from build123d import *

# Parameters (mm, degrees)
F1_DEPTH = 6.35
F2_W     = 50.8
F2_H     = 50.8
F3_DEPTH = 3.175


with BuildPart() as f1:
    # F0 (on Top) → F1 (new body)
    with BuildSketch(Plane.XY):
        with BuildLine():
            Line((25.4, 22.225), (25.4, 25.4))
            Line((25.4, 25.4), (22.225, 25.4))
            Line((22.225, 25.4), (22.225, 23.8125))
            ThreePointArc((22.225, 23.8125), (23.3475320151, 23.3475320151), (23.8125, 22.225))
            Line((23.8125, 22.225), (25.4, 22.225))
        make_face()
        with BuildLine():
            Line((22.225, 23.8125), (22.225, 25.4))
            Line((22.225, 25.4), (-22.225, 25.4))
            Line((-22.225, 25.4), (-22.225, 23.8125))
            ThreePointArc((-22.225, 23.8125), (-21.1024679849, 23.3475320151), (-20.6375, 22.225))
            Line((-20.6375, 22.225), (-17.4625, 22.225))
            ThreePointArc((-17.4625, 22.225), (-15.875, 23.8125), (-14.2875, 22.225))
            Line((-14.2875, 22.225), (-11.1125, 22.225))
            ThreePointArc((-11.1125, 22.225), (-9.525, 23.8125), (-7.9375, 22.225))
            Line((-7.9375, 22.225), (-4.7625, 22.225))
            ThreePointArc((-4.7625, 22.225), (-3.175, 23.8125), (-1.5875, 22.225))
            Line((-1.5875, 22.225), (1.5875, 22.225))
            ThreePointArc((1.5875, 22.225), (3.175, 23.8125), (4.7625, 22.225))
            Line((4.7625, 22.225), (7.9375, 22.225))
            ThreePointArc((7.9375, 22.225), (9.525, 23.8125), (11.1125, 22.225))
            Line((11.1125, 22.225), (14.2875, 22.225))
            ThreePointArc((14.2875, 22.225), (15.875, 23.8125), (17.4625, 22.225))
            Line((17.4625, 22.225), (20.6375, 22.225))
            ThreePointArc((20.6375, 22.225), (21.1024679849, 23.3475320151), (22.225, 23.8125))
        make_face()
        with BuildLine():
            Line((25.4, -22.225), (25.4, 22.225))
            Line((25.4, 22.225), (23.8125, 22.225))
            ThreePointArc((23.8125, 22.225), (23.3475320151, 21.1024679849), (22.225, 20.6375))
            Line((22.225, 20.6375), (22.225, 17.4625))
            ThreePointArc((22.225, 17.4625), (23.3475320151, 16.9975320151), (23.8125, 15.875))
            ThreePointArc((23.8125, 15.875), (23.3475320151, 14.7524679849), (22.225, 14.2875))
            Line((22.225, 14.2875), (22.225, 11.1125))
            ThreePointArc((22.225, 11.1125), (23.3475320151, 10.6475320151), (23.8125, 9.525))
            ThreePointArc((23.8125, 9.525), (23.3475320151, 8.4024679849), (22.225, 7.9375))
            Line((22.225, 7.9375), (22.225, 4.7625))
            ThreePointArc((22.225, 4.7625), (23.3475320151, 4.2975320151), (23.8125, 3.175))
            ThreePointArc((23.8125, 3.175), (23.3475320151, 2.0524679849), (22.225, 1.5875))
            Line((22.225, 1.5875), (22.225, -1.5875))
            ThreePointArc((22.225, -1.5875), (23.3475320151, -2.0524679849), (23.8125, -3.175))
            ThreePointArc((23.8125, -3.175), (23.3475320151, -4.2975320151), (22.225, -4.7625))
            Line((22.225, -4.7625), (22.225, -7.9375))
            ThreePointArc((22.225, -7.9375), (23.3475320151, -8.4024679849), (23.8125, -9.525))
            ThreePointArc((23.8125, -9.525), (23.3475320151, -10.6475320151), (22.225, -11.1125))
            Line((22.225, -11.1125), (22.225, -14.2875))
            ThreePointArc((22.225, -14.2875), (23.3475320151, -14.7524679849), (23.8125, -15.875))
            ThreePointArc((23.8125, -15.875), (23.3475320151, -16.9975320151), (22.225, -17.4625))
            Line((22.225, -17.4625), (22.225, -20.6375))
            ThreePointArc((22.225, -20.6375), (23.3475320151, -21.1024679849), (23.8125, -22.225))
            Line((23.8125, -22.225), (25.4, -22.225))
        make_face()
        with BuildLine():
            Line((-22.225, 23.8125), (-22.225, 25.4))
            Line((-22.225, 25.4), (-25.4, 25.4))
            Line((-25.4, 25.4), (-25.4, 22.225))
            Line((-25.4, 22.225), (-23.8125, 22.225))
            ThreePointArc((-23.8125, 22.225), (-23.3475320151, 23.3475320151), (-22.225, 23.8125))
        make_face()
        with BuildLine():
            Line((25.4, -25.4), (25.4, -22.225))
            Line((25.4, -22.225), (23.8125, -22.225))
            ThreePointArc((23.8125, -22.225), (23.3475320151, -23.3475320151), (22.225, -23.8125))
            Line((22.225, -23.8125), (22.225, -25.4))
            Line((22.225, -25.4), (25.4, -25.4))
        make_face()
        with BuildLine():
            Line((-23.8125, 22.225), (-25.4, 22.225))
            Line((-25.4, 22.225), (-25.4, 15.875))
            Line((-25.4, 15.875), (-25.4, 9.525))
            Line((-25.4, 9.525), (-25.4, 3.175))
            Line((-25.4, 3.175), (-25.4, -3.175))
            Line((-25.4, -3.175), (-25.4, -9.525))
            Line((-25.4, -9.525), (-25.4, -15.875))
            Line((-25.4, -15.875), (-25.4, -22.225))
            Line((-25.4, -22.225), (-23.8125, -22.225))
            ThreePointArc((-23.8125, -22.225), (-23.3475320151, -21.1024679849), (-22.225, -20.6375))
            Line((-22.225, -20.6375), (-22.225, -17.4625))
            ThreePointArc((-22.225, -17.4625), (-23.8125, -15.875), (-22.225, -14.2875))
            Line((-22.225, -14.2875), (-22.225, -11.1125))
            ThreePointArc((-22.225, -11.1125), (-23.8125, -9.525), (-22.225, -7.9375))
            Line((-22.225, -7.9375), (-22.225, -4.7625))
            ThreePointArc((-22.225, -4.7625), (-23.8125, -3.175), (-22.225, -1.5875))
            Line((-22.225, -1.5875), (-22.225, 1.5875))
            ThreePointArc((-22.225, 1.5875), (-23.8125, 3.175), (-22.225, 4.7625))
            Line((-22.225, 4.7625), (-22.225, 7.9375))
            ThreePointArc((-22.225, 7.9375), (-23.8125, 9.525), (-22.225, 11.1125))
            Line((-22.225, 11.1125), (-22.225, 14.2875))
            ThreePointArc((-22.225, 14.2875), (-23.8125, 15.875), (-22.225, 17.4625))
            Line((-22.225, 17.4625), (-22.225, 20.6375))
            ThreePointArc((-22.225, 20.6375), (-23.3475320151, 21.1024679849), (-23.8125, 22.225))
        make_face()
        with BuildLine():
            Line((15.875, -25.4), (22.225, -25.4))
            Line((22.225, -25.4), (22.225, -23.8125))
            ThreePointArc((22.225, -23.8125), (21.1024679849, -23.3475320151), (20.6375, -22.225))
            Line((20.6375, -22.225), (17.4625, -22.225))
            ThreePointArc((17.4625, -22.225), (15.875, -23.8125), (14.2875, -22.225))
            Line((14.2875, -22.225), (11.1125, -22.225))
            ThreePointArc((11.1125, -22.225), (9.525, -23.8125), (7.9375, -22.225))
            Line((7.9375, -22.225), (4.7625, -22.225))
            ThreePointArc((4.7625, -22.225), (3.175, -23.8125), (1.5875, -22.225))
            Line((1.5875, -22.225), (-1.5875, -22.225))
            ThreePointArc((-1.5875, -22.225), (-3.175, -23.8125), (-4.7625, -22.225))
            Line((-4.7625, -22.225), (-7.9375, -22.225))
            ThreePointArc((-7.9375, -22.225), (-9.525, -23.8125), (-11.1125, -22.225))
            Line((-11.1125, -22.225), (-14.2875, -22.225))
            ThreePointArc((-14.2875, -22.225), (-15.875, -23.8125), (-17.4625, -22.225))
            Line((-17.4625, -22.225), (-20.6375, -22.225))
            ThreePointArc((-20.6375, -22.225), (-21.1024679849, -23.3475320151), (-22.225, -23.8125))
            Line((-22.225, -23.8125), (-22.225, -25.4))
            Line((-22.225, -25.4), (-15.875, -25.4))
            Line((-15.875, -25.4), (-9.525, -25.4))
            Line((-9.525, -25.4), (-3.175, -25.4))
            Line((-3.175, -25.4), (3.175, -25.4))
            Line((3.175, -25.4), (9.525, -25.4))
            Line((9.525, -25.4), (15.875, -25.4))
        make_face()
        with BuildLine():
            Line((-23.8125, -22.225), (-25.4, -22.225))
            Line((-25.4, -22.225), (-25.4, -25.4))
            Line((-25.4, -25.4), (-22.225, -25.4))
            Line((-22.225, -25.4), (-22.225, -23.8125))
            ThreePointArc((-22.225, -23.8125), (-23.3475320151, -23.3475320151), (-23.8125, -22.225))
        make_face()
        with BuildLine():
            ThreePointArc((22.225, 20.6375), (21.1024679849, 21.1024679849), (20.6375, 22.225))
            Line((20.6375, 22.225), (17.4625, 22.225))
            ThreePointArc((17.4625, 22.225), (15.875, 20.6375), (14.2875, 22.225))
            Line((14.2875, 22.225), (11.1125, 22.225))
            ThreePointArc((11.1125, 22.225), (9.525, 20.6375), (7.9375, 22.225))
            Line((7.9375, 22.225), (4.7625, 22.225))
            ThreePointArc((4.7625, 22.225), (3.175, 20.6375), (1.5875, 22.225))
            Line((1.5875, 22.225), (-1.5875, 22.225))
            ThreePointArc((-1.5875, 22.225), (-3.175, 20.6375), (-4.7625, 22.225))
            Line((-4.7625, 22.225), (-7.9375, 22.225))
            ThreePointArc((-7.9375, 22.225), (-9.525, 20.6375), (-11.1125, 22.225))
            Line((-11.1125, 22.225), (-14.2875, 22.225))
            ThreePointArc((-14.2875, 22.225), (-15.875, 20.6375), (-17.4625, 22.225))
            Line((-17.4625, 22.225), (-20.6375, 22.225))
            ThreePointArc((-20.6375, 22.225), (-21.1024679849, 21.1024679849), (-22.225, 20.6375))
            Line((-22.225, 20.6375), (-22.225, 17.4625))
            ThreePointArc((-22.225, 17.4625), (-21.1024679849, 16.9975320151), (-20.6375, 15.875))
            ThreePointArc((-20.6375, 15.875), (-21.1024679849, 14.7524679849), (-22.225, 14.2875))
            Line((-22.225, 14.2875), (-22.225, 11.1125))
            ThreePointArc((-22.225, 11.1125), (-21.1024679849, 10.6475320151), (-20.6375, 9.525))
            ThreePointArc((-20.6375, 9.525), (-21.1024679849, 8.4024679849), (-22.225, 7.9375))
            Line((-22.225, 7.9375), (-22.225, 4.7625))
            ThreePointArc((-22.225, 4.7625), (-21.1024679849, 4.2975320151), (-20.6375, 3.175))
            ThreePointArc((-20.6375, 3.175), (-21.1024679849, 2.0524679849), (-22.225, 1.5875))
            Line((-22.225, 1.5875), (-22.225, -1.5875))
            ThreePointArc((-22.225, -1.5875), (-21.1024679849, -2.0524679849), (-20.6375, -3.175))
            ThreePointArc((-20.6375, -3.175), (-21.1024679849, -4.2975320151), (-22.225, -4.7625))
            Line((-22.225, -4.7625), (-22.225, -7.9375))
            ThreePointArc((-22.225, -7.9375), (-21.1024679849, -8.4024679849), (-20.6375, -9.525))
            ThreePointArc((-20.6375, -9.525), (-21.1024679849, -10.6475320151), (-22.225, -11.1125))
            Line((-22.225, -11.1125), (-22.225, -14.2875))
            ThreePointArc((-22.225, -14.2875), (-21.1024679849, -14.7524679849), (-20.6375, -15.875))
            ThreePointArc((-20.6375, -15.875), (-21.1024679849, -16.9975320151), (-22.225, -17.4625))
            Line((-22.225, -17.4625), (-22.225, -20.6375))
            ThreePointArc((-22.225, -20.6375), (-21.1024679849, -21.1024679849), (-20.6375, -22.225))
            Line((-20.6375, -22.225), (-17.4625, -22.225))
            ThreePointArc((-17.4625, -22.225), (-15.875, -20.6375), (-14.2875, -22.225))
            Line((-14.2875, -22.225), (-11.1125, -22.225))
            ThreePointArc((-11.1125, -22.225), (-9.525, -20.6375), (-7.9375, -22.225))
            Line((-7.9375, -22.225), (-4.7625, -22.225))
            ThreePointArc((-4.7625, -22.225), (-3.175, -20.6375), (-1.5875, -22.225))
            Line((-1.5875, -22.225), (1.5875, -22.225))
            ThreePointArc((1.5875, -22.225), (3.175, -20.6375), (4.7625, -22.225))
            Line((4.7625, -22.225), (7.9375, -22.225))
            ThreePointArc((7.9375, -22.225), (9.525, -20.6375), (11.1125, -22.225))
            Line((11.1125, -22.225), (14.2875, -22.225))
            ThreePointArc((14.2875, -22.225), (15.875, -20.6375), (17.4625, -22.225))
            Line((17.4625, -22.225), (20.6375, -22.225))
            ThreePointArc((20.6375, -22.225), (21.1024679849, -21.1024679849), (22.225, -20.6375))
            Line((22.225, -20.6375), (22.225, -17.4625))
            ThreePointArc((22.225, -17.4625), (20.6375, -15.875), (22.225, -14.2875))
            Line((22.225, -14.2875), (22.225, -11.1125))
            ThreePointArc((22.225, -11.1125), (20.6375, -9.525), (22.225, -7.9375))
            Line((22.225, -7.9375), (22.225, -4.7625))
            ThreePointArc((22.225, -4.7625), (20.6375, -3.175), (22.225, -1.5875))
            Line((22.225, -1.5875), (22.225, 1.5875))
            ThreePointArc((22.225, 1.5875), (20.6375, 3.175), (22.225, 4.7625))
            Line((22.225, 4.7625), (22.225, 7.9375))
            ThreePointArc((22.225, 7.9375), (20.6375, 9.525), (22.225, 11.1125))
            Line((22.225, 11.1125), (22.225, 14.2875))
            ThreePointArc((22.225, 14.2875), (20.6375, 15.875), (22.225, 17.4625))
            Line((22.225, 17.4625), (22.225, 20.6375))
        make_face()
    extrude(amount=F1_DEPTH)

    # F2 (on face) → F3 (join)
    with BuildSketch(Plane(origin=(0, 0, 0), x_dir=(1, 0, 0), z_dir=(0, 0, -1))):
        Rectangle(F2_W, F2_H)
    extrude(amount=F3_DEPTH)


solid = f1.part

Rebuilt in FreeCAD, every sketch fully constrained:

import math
import FreeCAD as App
import Part
import Sketcher
Q = App.Units.Quantity

doc = App.newDocument("Part")
body = doc.addObject("PartDesign::Body", "Body")

# Sketch on XY plane
sketch1 = body.newObject("Sketcher::SketchObject", "Sketch")
sketch1.AttachmentSupport = (doc.getObject("XY_Plane"), [""])
sketch1.MapMode = "FlatFace"
sketch1.addGeometry([
    Part.LineSegment(App.Vector(25.4, 25.4, 0), App.Vector(-25.4, 25.4, 0)),  # 0
    Part.LineSegment(App.Vector(-25.4, 25.4, 0), App.Vector(-25.4, -25.4, 0)),  # 1
    Part.LineSegment(App.Vector(-25.4, -25.4, 0), App.Vector(25.4, -25.4, 0)),  # 2
    Part.LineSegment(App.Vector(25.4, -25.4, 0), App.Vector(25.4, 25.4, 0)),  # 3
    Part.ArcOfCircle(Part.Circle(App.Vector(-22.2, -22.2, 0), App.Vector(0, 0, 1), 1.6), math.radians(90), math.radians(180)),  # 4
    Part.ArcOfCircle(Part.Circle(App.Vector(-22.2, -22.2, 0), App.Vector(0, 0, 1), 1.6), math.radians(0), math.radians(90)),  # 5
    Part.ArcOfCircle(Part.Circle(App.Vector(-22.2, -22.2, 0), App.Vector(0, 0, 1), 1.6), math.radians(-90), math.radians(0)),  # 6
    Part.ArcOfCircle(Part.Circle(App.Vector(-22.2, -22.2, 0), App.Vector(0, 0, 1), 1.6), math.radians(180), math.radians(270)),  # 7
    Part.ArcOfCircle(Part.Circle(App.Vector(-22.2, -15.9, 0), App.Vector(0, 0, 1), 1.6), math.radians(90), math.radians(270)),  # 8
    Part.ArcOfCircle(Part.Circle(App.Vector(-22.2, -15.9, 0), App.Vector(0, 0, 1), 1.6), math.radians(0), math.radians(90)),  # 9
    Part.ArcOfCircle(Part.Circle(App.Vector(-22.2, -15.9, 0), App.Vector(0, 0, 1), 1.6), math.radians(-90), math.radians(0)),  # 10
    Part.ArcOfCircle(Part.Circle(App.Vector(-22.2, -9.5, 0), App.Vector(0, 0, 1), 1.6), math.radians(90), math.radians(270)),  # 11
    Part.ArcOfCircle(Part.Circle(App.Vector(-22.2, -9.5, 0), App.Vector(0, 0, 1), 1.6), math.radians(0), math.radians(90)),  # 12
    Part.ArcOfCircle(Part.Circle(App.Vector(-22.2, -9.5, 0), App.Vector(0, 0, 1), 1.6), math.radians(-90), math.radians(0)),  # 13
    Part.ArcOfCircle(Part.Circle(App.Vector(-22.2, -3.2, 0), App.Vector(0, 0, 1), 1.6), math.radians(90), math.radians(270)),  # 14
    Part.ArcOfCircle(Part.Circle(App.Vector(-22.2, -3.2, 0), App.Vector(0, 0, 1), 1.6), math.radians(0), math.radians(90)),  # 15
    Part.ArcOfCircle(Part.Circle(App.Vector(-22.2, -3.2, 0), App.Vector(0, 0, 1), 1.6), math.radians(-90), math.radians(0)),  # 16
    Part.ArcOfCircle(Part.Circle(App.Vector(-22.2, 3.2, 0), App.Vector(0, 0, 1), 1.6), math.radians(90), math.radians(270)),  # 17
    Part.ArcOfCircle(Part.Circle(App.Vector(-22.2, 3.2, 0), App.Vector(0, 0, 1), 1.6), math.radians(0), math.radians(90)),  # 18
    Part.ArcOfCircle(Part.Circle(App.Vector(-22.2, 3.2, 0), App.Vector(0, 0, 1), 1.6), math.radians(-90), math.radians(0)),  # 19
    Part.ArcOfCircle(Part.Circle(App.Vector(-22.2, 9.5, 0), App.Vector(0, 0, 1), 1.6), math.radians(90), math.radians(270)),  # 20
    Part.ArcOfCircle(Part.Circle(App.Vector(-22.2, 9.5, 0), App.Vector(0, 0, 1), 1.6), math.radians(0), math.radians(90)),  # 21
    Part.ArcOfCircle(Part.Circle(App.Vector(-22.2, 9.5, 0), App.Vector(0, 0, 1), 1.6), math.radians(-90), math.radians(0)),  # 22
    Part.ArcOfCircle(Part.Circle(App.Vector(-22.2, 15.9, 0), App.Vector(0, 0, 1), 1.6), math.radians(90), math.radians(270)),  # 23
    Part.ArcOfCircle(Part.Circle(App.Vector(-22.2, 15.9, 0), App.Vector(0, 0, 1), 1.6), math.radians(0), math.radians(90)),  # 24
    Part.ArcOfCircle(Part.Circle(App.Vector(-22.2, 15.9, 0), App.Vector(0, 0, 1), 1.6), math.radians(-90), math.radians(0)),  # 25
    Part.ArcOfCircle(Part.Circle(App.Vector(-22.2, 22.2, 0), App.Vector(0, 0, 1), 1.6), math.radians(180), math.radians(270)),  # 26
    Part.ArcOfCircle(Part.Circle(App.Vector(-22.2, 22.2, 0), App.Vector(0, 0, 1), 1.6), math.radians(90), math.radians(180)),  # 27
    Part.ArcOfCircle(Part.Circle(App.Vector(-22.2, 22.2, 0), App.Vector(0, 0, 1), 1.6), math.radians(0), math.radians(90)),  # 28
    Part.ArcOfCircle(Part.Circle(App.Vector(-22.2, 22.2, 0), App.Vector(0, 0, 1), 1.6), math.radians(-90), math.radians(0)),  # 29
    Part.Circle(App.Vector(-15.9, 22.2, 0), App.Vector(0, 0, 1), 1.6),  # 30
    Part.Circle(App.Vector(-9.5, 22.2, 0), App.Vector(0, 0, 1), 1.6),  # 31
    Part.Circle(App.Vector(-3.2, 22.2, 0), App.Vector(0, 0, 1), 1.6),  # 32
    Part.Circle(App.Vector(3.2, 22.2, 0), App.Vector(0, 0, 1), 1.6),  # 33
    Part.Circle(App.Vector(9.5, 22.2, 0), App.Vector(0, 0, 1), 1.6),  # 34
    Part.Circle(App.Vector(15.9, 22.2, 0), App.Vector(0, 0, 1), 1.6),  # 35
    Part.ArcOfCircle(Part.Circle(App.Vector(22.2, 22.2, 0), App.Vector(0, 0, 1), 1.6), math.radians(90), math.radians(180)),  # 36
    Part.ArcOfCircle(Part.Circle(App.Vector(22.2, 22.2, 0), App.Vector(0, 0, 1), 1.6), math.radians(0), math.radians(90)),  # 37
    Part.ArcOfCircle(Part.Circle(App.Vector(22.2, 22.2, 0), App.Vector(0, 0, 1), 1.6), math.radians(-90), math.radians(0)),  # 38
    Part.ArcOfCircle(Part.Circle(App.Vector(22.2, 22.2, 0), App.Vector(0, 0, 1), 1.6), math.radians(180), math.radians(270)),  # 39
    Part.ArcOfCircle(Part.Circle(App.Vector(22.2, 15.9, 0), App.Vector(0, 0, 1), 1.6), math.radians(0), math.radians(90)),  # 40
    Part.ArcOfCircle(Part.Circle(App.Vector(22.2, 15.9, 0), App.Vector(0, 0, 1), 1.6), math.radians(-90), math.radians(0)),  # 41
    Part.ArcOfCircle(Part.Circle(App.Vector(22.2, 15.9, 0), App.Vector(0, 0, 1), 1.6), math.radians(90), math.radians(270)),  # 42
    Part.ArcOfCircle(Part.Circle(App.Vector(22.2, 9.5, 0), App.Vector(0, 0, 1), 1.6), math.radians(0), math.radians(90)),  # 43
    Part.ArcOfCircle(Part.Circle(App.Vector(22.2, 9.5, 0), App.Vector(0, 0, 1), 1.6), math.radians(-90), math.radians(0)),  # 44
    Part.ArcOfCircle(Part.Circle(App.Vector(22.2, 9.5, 0), App.Vector(0, 0, 1), 1.6), math.radians(90), math.radians(270)),  # 45
    Part.ArcOfCircle(Part.Circle(App.Vector(22.2, 3.2, 0), App.Vector(0, 0, 1), 1.6), math.radians(0), math.radians(90)),  # 46
    Part.ArcOfCircle(Part.Circle(App.Vector(22.2, 3.2, 0), App.Vector(0, 0, 1), 1.6), math.radians(-90), math.radians(0)),  # 47
    Part.ArcOfCircle(Part.Circle(App.Vector(22.2, 3.2, 0), App.Vector(0, 0, 1), 1.6), math.radians(90), math.radians(270)),  # 48
    Part.ArcOfCircle(Part.Circle(App.Vector(22.2, -3.2, 0), App.Vector(0, 0, 1), 1.6), math.radians(0), math.radians(90)),  # 49
    Part.ArcOfCircle(Part.Circle(App.Vector(22.2, -3.2, 0), App.Vector(0, 0, 1), 1.6), math.radians(-90), math.radians(0)),  # 50
    Part.ArcOfCircle(Part.Circle(App.Vector(22.2, -3.2, 0), App.Vector(0, 0, 1), 1.6), math.radians(90), math.radians(270)),  # 51
    Part.ArcOfCircle(Part.Circle(App.Vector(22.2, -9.5, 0), App.Vector(0, 0, 1), 1.6), math.radians(0), math.radians(90)),  # 52
    Part.ArcOfCircle(Part.Circle(App.Vector(22.2, -9.5, 0), App.Vector(0, 0, 1), 1.6), math.radians(-90), math.radians(0)),  # 53
    Part.ArcOfCircle(Part.Circle(App.Vector(22.2, -9.5, 0), App.Vector(0, 0, 1), 1.6), math.radians(90), math.radians(270)),  # 54
    Part.ArcOfCircle(Part.Circle(App.Vector(22.2, -15.9, 0), App.Vector(0, 0, 1), 1.6), math.radians(0), math.radians(90)),  # 55
    Part.ArcOfCircle(Part.Circle(App.Vector(22.2, -15.9, 0), App.Vector(0, 0, 1), 1.6), math.radians(-90), math.radians(0)),  # 56
    Part.ArcOfCircle(Part.Circle(App.Vector(22.2, -15.9, 0), App.Vector(0, 0, 1), 1.6), math.radians(90), math.radians(270)),  # 57
    Part.ArcOfCircle(Part.Circle(App.Vector(22.2, -22.2, 0), App.Vector(0, 0, 1), 1.6), math.radians(0), math.radians(90)),  # 58
    Part.ArcOfCircle(Part.Circle(App.Vector(22.2, -22.2, 0), App.Vector(0, 0, 1), 1.6), math.radians(-90), math.radians(0)),  # 59
    Part.ArcOfCircle(Part.Circle(App.Vector(22.2, -22.2, 0), App.Vector(0, 0, 1), 1.6), math.radians(180), math.radians(270)),  # 60
    Part.ArcOfCircle(Part.Circle(App.Vector(22.2, -22.2, 0), App.Vector(0, 0, 1), 1.6), math.radians(90), math.radians(180)),  # 61
    Part.Circle(App.Vector(15.9, -22.2, 0), App.Vector(0, 0, 1), 1.6),  # 62
    Part.Circle(App.Vector(9.5, -22.2, 0), App.Vector(0, 0, 1), 1.6),  # 63
    Part.Circle(App.Vector(3.2, -22.2, 0), App.Vector(0, 0, 1), 1.6),  # 64
    Part.Circle(App.Vector(-3.2, -22.2, 0), App.Vector(0, 0, 1), 1.6),  # 65
    Part.Circle(App.Vector(-9.5, -22.2, 0), App.Vector(0, 0, 1), 1.6),  # 66
    Part.Circle(App.Vector(-15.9, -22.2, 0), App.Vector(0, 0, 1), 1.6),  # 67
], False)
sketch1.addConstraint([
    Sketcher.Constraint("Coincident", 0, 2, 1, 1),
    Sketcher.Constraint("Coincident", 1, 2, 2, 1),
    Sketcher.Constraint("Coincident", 2, 2, 3, 1),
    Sketcher.Constraint("Coincident", 3, 2, 0, 1),
    Sketcher.Constraint("Tangent", 4, 1, 5, 2),
    Sketcher.Constraint("Tangent", 5, 1, 6, 2),
    Sketcher.Constraint("Tangent", 6, 1, 7, 2),
    Sketcher.Constraint("Tangent", 7, 1, 4, 2),
    Sketcher.Constraint("Tangent", 8, 1, 9, 2),
    Sketcher.Constraint("Tangent", 9, 1, 10, 2),
    Sketcher.Constraint("Tangent", 10, 1, 8, 2),
    Sketcher.Constraint("Tangent", 11, 1, 12, 2),
    Sketcher.Constraint("Tangent", 12, 1, 13, 2),
    Sketcher.Constraint("Tangent", 13, 1, 11, 2),
    Sketcher.Constraint("Tangent", 14, 1, 15, 2),
    Sketcher.Constraint("Tangent", 15, 1, 16, 2),
    Sketcher.Constraint("Tangent", 16, 1, 14, 2),
    Sketcher.Constraint("Tangent", 17, 1, 18, 2),
    Sketcher.Constraint("Tangent", 18, 1, 19, 2),
    Sketcher.Constraint("Tangent", 19, 1, 17, 2),
    Sketcher.Constraint("Tangent", 20, 1, 21, 2),
    Sketcher.Constraint("Tangent", 21, 1, 22, 2),
    Sketcher.Constraint("Tangent", 22, 1, 20, 2),
    Sketcher.Constraint("Tangent", 23, 1, 24, 2),
    Sketcher.Constraint("Tangent", 24, 1, 25, 2),
    Sketcher.Constraint("Tangent", 25, 1, 23, 2),
    Sketcher.Constraint("Tangent", 26, 1, 27, 2),
    Sketcher.Constraint("Tangent", 27, 1, 28, 2),
    Sketcher.Constraint("Tangent", 28, 1, 29, 2),
    Sketcher.Constraint("Tangent", 29, 1, 26, 2),
    Sketcher.Constraint("Tangent", 36, 1, 37, 2),
    Sketcher.Constraint("Tangent", 37, 1, 38, 2),
    Sketcher.Constraint("Tangent", 38, 1, 39, 2),
    Sketcher.Constraint("Tangent", 39, 1, 36, 2),
    Sketcher.Constraint("Tangent", 40, 1, 41, 2),
    Sketcher.Constraint("Tangent", 41, 1, 42, 2),
    Sketcher.Constraint("Tangent", 42, 1, 40, 2),
    Sketcher.Constraint("Tangent", 43, 1, 44, 2),
    Sketcher.Constraint("Tangent", 44, 1, 45, 2),
    Sketcher.Constraint("Tangent", 45, 1, 43, 2),
    Sketcher.Constraint("Tangent", 46, 1, 47, 2),
    Sketcher.Constraint("Tangent", 47, 1, 48, 2),
    Sketcher.Constraint("Tangent", 48, 1, 46, 2),
    Sketcher.Constraint("Tangent", 49, 1, 50, 2),
    Sketcher.Constraint("Tangent", 50, 1, 51, 2),
    Sketcher.Constraint("Tangent", 51, 1, 49, 2),
    Sketcher.Constraint("Tangent", 52, 1, 53, 2),
    Sketcher.Constraint("Tangent", 53, 1, 54, 2),
    Sketcher.Constraint("Tangent", 54, 1, 52, 2),
    Sketcher.Constraint("Tangent", 55, 1, 56, 2),
    Sketcher.Constraint("Tangent", 56, 1, 57, 2),
    Sketcher.Constraint("Tangent", 57, 1, 55, 2),
    Sketcher.Constraint("Tangent", 58, 1, 59, 2),
    Sketcher.Constraint("Tangent", 59, 1, 60, 2),
    Sketcher.Constraint("Tangent", 60, 1, 61, 2),
    Sketcher.Constraint("Tangent", 61, 1, 58, 2),
    Sketcher.Constraint("Horizontal", 0),
    Sketcher.Constraint("Vertical", 1),
    Sketcher.Constraint("Horizontal", 2),
    Sketcher.Constraint("Vertical", 3),
    Sketcher.Constraint("Equal", 4, 5),
    Sketcher.Constraint("Equal", 7, 8),
    Sketcher.Constraint("Equal", 10, 11),
    Sketcher.Constraint("Equal", 13, 14),
    Sketcher.Constraint("Equal", 16, 17),
    Sketcher.Constraint("Equal", 19, 20),
    Sketcher.Constraint("Equal", 22, 23),
    Sketcher.Constraint("Equal", 25, 26),
    Sketcher.Constraint("Equal", 26, 27),
    Sketcher.Constraint("Equal", 29, 30),
    Sketcher.Constraint("Equal", 30, 31),
    Sketcher.Constraint("Equal", 31, 32),
    Sketcher.Constraint("Equal", 32, 33),
    Sketcher.Constraint("Equal", 33, 34),
    Sketcher.Constraint("Equal", 34, 35),
    Sketcher.Constraint("Equal", 35, 36),
    Sketcher.Constraint("Equal", 36, 37),
    Sketcher.Constraint("Equal", 39, 40),
    Sketcher.Constraint("Equal", 42, 43),
    Sketcher.Constraint("Equal", 45, 46),
    Sketcher.Constraint("Equal", 48, 49),
    Sketcher.Constraint("Equal", 51, 52),
    Sketcher.Constraint("Equal", 54, 55),
    Sketcher.Constraint("Equal", 57, 58),
    Sketcher.Constraint("Equal", 58, 59),
    Sketcher.Constraint("Equal", 61, 62),
    Sketcher.Constraint("Equal", 62, 63),
    Sketcher.Constraint("Equal", 63, 64),
    Sketcher.Constraint("Equal", 64, 65),
    Sketcher.Constraint("Equal", 65, 66),
    Sketcher.Constraint("Equal", 66, 67),
    Sketcher.Constraint("Symmetric", 4, 3, 36, 3, -1, 1),
    Sketcher.Constraint("Symmetric", 8, 3, 40, 3, -1, 1),
    Sketcher.Constraint("Symmetric", 11, 3, 43, 3, -1, 1),
    Sketcher.Constraint("Symmetric", 14, 3, 46, 3, -1, 1),
    Sketcher.Constraint("Symmetric", 17, 3, 49, 3, -1, 1),
    Sketcher.Constraint("Symmetric", 20, 3, 52, 3, -1, 1),
    Sketcher.Constraint("Symmetric", 23, 3, 55, 3, -1, 1),
    Sketcher.Constraint("Symmetric", 26, 3, 58, 3, -1, 1),
    Sketcher.Constraint("Symmetric", 30, 3, 62, 3, -1, 1),
    Sketcher.Constraint("Symmetric", 31, 3, 63, 3, -1, 1),
    Sketcher.Constraint("Symmetric", 32, 3, 64, 3, -1, 1),
    Sketcher.Constraint("Symmetric", 33, 3, 65, 3, -1, 1),
    Sketcher.Constraint("Symmetric", 34, 3, 66, 3, -1, 1),
    Sketcher.Constraint("Symmetric", 35, 3, 67, 3, -1, 1),
    Sketcher.Constraint("Symmetric", 0, 2, 2, 2, -1, 1),
    Sketcher.Constraint("Symmetric", 32, 3, 33, 3, -2),
    Sketcher.Constraint("Symmetric", 31, 3, 34, 3, -2),
    Sketcher.Constraint("Symmetric", 30, 3, 35, 3, -2),
    Sketcher.Constraint("Symmetric", 26, 3, 36, 3, -2),
    Sketcher.Constraint("Symmetric", 23, 3, 40, 3, -2),
    Sketcher.Constraint("Symmetric", 20, 3, 43, 3, -2),
    Sketcher.Constraint("Symmetric", 17, 3, 46, 3, -2),
    Sketcher.Constraint("Horizontal", 29, 3, 30, 3),
    Sketcher.Constraint("Horizontal", 30, 3, 31, 3),
    Sketcher.Constraint("Horizontal", 31, 3, 32, 3),
    Sketcher.Constraint("Horizontal", 67, 3, 5, 1),
    Sketcher.Constraint("Horizontal", 5, 1, 7, 1),
    Sketcher.Constraint("Horizontal", 57, 3, 9, 1),
    Sketcher.Constraint("Horizontal", 54, 3, 12, 1),
    Sketcher.Constraint("Horizontal", 51, 3, 15, 1),
    Sketcher.Constraint("Horizontal", 48, 3, 18, 1),
    Sketcher.Constraint("Horizontal", 45, 3, 21, 1),
    Sketcher.Constraint("Horizontal", 42, 3, 24, 1),
    Sketcher.Constraint("Horizontal", 39, 3, 26, 1),
    Sketcher.Constraint("Horizontal", 26, 1, 28, 1),
    Sketcher.Constraint("Horizontal", 28, 1, 37, 1),
    Sketcher.Constraint("Horizontal", 37, 1, 39, 1),
    Sketcher.Constraint("Horizontal", 24, 1, 40, 1),
    Sketcher.Constraint("Horizontal", 21, 1, 43, 1),
    Sketcher.Constraint("Horizontal", 18, 1, 46, 1),
    Sketcher.Constraint("Horizontal", 15, 1, 49, 1),
    Sketcher.Constraint("Horizontal", 12, 1, 52, 1),
    Sketcher.Constraint("Horizontal", 9, 1, 55, 1),
    Sketcher.Constraint("Horizontal", 7, 1, 58, 1),
    Sketcher.Constraint("Horizontal", 58, 1, 60, 1),
    Sketcher.Constraint("Vertical", 7, 3, 8, 3),
    Sketcher.Constraint("Vertical", 10, 3, 11, 3),
    Sketcher.Constraint("Vertical", 13, 3, 14, 3),
    Sketcher.Constraint("Vertical", 29, 3, 4, 1),
    Sketcher.Constraint("Vertical", 4, 1, 6, 1),
    Sketcher.Constraint("Vertical", 6, 1, 8, 1),
    Sketcher.Constraint("Vertical", 8, 1, 10, 1),
    Sketcher.Constraint("Vertical", 10, 1, 11, 1),
    Sketcher.Constraint("Vertical", 11, 1, 13, 1),
    Sketcher.Constraint("Vertical", 13, 1, 14, 1),
    Sketcher.Constraint("Vertical", 14, 1, 16, 1),
    Sketcher.Constraint("Vertical", 16, 1, 17, 1),
    Sketcher.Constraint("Vertical", 17, 1, 19, 1),
    Sketcher.Constraint("Vertical", 19, 1, 20, 1),
    Sketcher.Constraint("Vertical", 20, 1, 22, 1),
    Sketcher.Constraint("Vertical", 22, 1, 23, 1),
    Sketcher.Constraint("Vertical", 23, 1, 25, 1),
    Sketcher.Constraint("Vertical", 25, 1, 27, 1),
    Sketcher.Constraint("Vertical", 27, 1, 29, 1),
    Sketcher.Constraint("Vertical", 61, 3, 36, 1),
    Sketcher.Constraint("Vertical", 36, 1, 38, 1),
    Sketcher.Constraint("Vertical", 38, 1, 41, 1),
    Sketcher.Constraint("Vertical", 41, 1, 42, 1),
    Sketcher.Constraint("Vertical", 42, 1, 44, 1),
    Sketcher.Constraint("Vertical", 44, 1, 45, 1),
    Sketcher.Constraint("Vertical", 45, 1, 47, 1),
    Sketcher.Constraint("Vertical", 47, 1, 48, 1),
    Sketcher.Constraint("Vertical", 48, 1, 50, 1),
    Sketcher.Constraint("Vertical", 50, 1, 51, 1),
    Sketcher.Constraint("Vertical", 51, 1, 53, 1),
    Sketcher.Constraint("Vertical", 53, 1, 54, 1),
    Sketcher.Constraint("Vertical", 54, 1, 56, 1),
    Sketcher.Constraint("Vertical", 56, 1, 57, 1),
    Sketcher.Constraint("Vertical", 57, 1, 59, 1),
    Sketcher.Constraint("Vertical", 59, 1, 61, 1),
    Sketcher.Constraint("Equal", 2, 1),
    Sketcher.Constraint("DistanceX", 0, 2, 0, 1, Q("2 in")),
    Sketcher.Constraint("Diameter", 30, Q("0.125 in")),
    Sketcher.Constraint("DistanceX", 4, 3, -1, 1, Q("0.875 in")),
    Sketcher.Constraint("DistanceY", 4, 3, -1, 1, Q("0.875 in")),
    Sketcher.Constraint("DistanceY", 8, 3, -1, 1, Q("0.625 in")),
    Sketcher.Constraint("DistanceY", 11, 3, -1, 1, Q("0.375 in")),
    Sketcher.Constraint("DistanceY", 14, 3, -1, 1, Q("0.125 in")),
    Sketcher.Constraint("DistanceX", 30, 3, -1, 1, Q("0.625 in")),
    Sketcher.Constraint("DistanceX", 31, 3, -1, 1, Q("0.375 in")),
    Sketcher.Constraint("DistanceX", 32, 3, -1, 1, Q("0.125 in")),
])
pad1 = body.newObject("PartDesign::Pad", "Pad")
pad1.Profile = sketch1
pad1.Length = Q("0.25 in")

# Sketch on XY plane
sketch2 = body.newObject("Sketcher::SketchObject", "Sketch001")
sketch2.AttachmentSupport = (doc.getObject("XY_Plane"), [""])
sketch2.MapMode = "FlatFace"
sketch2.addGeometry([
    Part.LineSegment(App.Vector(-25, -25, 0), App.Vector(-25, 25, 0)),
    Part.LineSegment(App.Vector(-25, 25, 0), App.Vector(25, 25, 0)),
    Part.LineSegment(App.Vector(25, 25, 0), App.Vector(25, -25, 0)),
    Part.LineSegment(App.Vector(25, -25, 0), App.Vector(-25, -25, 0)),
], False)
sketch2.addConstraint([
    Sketcher.Constraint("Coincident", 0, 2, 1, 1),
    Sketcher.Constraint("Coincident", 1, 2, 2, 1),
    Sketcher.Constraint("Coincident", 2, 2, 3, 1),
    Sketcher.Constraint("Coincident", 3, 2, 0, 1),
    Sketcher.Constraint("Vertical", 0),
    Sketcher.Constraint("Horizontal", 1),
    Sketcher.Constraint("Vertical", 2),
    Sketcher.Constraint("Horizontal", 3),
    Sketcher.Constraint("Symmetric", 0, 2, 2, 2, -1, 1),
    Sketcher.Constraint("Equal", 3, 0),
    Sketcher.Constraint("DistanceX", 1, 1, 1, 2, Q("2 in")),
])
pad2 = body.newObject("PartDesign::Pad", "Pad001")
pad2.Profile = sketch2
pad2.Length = Q("0.125 in")
pad2.Reversed = True

doc.recompute()
